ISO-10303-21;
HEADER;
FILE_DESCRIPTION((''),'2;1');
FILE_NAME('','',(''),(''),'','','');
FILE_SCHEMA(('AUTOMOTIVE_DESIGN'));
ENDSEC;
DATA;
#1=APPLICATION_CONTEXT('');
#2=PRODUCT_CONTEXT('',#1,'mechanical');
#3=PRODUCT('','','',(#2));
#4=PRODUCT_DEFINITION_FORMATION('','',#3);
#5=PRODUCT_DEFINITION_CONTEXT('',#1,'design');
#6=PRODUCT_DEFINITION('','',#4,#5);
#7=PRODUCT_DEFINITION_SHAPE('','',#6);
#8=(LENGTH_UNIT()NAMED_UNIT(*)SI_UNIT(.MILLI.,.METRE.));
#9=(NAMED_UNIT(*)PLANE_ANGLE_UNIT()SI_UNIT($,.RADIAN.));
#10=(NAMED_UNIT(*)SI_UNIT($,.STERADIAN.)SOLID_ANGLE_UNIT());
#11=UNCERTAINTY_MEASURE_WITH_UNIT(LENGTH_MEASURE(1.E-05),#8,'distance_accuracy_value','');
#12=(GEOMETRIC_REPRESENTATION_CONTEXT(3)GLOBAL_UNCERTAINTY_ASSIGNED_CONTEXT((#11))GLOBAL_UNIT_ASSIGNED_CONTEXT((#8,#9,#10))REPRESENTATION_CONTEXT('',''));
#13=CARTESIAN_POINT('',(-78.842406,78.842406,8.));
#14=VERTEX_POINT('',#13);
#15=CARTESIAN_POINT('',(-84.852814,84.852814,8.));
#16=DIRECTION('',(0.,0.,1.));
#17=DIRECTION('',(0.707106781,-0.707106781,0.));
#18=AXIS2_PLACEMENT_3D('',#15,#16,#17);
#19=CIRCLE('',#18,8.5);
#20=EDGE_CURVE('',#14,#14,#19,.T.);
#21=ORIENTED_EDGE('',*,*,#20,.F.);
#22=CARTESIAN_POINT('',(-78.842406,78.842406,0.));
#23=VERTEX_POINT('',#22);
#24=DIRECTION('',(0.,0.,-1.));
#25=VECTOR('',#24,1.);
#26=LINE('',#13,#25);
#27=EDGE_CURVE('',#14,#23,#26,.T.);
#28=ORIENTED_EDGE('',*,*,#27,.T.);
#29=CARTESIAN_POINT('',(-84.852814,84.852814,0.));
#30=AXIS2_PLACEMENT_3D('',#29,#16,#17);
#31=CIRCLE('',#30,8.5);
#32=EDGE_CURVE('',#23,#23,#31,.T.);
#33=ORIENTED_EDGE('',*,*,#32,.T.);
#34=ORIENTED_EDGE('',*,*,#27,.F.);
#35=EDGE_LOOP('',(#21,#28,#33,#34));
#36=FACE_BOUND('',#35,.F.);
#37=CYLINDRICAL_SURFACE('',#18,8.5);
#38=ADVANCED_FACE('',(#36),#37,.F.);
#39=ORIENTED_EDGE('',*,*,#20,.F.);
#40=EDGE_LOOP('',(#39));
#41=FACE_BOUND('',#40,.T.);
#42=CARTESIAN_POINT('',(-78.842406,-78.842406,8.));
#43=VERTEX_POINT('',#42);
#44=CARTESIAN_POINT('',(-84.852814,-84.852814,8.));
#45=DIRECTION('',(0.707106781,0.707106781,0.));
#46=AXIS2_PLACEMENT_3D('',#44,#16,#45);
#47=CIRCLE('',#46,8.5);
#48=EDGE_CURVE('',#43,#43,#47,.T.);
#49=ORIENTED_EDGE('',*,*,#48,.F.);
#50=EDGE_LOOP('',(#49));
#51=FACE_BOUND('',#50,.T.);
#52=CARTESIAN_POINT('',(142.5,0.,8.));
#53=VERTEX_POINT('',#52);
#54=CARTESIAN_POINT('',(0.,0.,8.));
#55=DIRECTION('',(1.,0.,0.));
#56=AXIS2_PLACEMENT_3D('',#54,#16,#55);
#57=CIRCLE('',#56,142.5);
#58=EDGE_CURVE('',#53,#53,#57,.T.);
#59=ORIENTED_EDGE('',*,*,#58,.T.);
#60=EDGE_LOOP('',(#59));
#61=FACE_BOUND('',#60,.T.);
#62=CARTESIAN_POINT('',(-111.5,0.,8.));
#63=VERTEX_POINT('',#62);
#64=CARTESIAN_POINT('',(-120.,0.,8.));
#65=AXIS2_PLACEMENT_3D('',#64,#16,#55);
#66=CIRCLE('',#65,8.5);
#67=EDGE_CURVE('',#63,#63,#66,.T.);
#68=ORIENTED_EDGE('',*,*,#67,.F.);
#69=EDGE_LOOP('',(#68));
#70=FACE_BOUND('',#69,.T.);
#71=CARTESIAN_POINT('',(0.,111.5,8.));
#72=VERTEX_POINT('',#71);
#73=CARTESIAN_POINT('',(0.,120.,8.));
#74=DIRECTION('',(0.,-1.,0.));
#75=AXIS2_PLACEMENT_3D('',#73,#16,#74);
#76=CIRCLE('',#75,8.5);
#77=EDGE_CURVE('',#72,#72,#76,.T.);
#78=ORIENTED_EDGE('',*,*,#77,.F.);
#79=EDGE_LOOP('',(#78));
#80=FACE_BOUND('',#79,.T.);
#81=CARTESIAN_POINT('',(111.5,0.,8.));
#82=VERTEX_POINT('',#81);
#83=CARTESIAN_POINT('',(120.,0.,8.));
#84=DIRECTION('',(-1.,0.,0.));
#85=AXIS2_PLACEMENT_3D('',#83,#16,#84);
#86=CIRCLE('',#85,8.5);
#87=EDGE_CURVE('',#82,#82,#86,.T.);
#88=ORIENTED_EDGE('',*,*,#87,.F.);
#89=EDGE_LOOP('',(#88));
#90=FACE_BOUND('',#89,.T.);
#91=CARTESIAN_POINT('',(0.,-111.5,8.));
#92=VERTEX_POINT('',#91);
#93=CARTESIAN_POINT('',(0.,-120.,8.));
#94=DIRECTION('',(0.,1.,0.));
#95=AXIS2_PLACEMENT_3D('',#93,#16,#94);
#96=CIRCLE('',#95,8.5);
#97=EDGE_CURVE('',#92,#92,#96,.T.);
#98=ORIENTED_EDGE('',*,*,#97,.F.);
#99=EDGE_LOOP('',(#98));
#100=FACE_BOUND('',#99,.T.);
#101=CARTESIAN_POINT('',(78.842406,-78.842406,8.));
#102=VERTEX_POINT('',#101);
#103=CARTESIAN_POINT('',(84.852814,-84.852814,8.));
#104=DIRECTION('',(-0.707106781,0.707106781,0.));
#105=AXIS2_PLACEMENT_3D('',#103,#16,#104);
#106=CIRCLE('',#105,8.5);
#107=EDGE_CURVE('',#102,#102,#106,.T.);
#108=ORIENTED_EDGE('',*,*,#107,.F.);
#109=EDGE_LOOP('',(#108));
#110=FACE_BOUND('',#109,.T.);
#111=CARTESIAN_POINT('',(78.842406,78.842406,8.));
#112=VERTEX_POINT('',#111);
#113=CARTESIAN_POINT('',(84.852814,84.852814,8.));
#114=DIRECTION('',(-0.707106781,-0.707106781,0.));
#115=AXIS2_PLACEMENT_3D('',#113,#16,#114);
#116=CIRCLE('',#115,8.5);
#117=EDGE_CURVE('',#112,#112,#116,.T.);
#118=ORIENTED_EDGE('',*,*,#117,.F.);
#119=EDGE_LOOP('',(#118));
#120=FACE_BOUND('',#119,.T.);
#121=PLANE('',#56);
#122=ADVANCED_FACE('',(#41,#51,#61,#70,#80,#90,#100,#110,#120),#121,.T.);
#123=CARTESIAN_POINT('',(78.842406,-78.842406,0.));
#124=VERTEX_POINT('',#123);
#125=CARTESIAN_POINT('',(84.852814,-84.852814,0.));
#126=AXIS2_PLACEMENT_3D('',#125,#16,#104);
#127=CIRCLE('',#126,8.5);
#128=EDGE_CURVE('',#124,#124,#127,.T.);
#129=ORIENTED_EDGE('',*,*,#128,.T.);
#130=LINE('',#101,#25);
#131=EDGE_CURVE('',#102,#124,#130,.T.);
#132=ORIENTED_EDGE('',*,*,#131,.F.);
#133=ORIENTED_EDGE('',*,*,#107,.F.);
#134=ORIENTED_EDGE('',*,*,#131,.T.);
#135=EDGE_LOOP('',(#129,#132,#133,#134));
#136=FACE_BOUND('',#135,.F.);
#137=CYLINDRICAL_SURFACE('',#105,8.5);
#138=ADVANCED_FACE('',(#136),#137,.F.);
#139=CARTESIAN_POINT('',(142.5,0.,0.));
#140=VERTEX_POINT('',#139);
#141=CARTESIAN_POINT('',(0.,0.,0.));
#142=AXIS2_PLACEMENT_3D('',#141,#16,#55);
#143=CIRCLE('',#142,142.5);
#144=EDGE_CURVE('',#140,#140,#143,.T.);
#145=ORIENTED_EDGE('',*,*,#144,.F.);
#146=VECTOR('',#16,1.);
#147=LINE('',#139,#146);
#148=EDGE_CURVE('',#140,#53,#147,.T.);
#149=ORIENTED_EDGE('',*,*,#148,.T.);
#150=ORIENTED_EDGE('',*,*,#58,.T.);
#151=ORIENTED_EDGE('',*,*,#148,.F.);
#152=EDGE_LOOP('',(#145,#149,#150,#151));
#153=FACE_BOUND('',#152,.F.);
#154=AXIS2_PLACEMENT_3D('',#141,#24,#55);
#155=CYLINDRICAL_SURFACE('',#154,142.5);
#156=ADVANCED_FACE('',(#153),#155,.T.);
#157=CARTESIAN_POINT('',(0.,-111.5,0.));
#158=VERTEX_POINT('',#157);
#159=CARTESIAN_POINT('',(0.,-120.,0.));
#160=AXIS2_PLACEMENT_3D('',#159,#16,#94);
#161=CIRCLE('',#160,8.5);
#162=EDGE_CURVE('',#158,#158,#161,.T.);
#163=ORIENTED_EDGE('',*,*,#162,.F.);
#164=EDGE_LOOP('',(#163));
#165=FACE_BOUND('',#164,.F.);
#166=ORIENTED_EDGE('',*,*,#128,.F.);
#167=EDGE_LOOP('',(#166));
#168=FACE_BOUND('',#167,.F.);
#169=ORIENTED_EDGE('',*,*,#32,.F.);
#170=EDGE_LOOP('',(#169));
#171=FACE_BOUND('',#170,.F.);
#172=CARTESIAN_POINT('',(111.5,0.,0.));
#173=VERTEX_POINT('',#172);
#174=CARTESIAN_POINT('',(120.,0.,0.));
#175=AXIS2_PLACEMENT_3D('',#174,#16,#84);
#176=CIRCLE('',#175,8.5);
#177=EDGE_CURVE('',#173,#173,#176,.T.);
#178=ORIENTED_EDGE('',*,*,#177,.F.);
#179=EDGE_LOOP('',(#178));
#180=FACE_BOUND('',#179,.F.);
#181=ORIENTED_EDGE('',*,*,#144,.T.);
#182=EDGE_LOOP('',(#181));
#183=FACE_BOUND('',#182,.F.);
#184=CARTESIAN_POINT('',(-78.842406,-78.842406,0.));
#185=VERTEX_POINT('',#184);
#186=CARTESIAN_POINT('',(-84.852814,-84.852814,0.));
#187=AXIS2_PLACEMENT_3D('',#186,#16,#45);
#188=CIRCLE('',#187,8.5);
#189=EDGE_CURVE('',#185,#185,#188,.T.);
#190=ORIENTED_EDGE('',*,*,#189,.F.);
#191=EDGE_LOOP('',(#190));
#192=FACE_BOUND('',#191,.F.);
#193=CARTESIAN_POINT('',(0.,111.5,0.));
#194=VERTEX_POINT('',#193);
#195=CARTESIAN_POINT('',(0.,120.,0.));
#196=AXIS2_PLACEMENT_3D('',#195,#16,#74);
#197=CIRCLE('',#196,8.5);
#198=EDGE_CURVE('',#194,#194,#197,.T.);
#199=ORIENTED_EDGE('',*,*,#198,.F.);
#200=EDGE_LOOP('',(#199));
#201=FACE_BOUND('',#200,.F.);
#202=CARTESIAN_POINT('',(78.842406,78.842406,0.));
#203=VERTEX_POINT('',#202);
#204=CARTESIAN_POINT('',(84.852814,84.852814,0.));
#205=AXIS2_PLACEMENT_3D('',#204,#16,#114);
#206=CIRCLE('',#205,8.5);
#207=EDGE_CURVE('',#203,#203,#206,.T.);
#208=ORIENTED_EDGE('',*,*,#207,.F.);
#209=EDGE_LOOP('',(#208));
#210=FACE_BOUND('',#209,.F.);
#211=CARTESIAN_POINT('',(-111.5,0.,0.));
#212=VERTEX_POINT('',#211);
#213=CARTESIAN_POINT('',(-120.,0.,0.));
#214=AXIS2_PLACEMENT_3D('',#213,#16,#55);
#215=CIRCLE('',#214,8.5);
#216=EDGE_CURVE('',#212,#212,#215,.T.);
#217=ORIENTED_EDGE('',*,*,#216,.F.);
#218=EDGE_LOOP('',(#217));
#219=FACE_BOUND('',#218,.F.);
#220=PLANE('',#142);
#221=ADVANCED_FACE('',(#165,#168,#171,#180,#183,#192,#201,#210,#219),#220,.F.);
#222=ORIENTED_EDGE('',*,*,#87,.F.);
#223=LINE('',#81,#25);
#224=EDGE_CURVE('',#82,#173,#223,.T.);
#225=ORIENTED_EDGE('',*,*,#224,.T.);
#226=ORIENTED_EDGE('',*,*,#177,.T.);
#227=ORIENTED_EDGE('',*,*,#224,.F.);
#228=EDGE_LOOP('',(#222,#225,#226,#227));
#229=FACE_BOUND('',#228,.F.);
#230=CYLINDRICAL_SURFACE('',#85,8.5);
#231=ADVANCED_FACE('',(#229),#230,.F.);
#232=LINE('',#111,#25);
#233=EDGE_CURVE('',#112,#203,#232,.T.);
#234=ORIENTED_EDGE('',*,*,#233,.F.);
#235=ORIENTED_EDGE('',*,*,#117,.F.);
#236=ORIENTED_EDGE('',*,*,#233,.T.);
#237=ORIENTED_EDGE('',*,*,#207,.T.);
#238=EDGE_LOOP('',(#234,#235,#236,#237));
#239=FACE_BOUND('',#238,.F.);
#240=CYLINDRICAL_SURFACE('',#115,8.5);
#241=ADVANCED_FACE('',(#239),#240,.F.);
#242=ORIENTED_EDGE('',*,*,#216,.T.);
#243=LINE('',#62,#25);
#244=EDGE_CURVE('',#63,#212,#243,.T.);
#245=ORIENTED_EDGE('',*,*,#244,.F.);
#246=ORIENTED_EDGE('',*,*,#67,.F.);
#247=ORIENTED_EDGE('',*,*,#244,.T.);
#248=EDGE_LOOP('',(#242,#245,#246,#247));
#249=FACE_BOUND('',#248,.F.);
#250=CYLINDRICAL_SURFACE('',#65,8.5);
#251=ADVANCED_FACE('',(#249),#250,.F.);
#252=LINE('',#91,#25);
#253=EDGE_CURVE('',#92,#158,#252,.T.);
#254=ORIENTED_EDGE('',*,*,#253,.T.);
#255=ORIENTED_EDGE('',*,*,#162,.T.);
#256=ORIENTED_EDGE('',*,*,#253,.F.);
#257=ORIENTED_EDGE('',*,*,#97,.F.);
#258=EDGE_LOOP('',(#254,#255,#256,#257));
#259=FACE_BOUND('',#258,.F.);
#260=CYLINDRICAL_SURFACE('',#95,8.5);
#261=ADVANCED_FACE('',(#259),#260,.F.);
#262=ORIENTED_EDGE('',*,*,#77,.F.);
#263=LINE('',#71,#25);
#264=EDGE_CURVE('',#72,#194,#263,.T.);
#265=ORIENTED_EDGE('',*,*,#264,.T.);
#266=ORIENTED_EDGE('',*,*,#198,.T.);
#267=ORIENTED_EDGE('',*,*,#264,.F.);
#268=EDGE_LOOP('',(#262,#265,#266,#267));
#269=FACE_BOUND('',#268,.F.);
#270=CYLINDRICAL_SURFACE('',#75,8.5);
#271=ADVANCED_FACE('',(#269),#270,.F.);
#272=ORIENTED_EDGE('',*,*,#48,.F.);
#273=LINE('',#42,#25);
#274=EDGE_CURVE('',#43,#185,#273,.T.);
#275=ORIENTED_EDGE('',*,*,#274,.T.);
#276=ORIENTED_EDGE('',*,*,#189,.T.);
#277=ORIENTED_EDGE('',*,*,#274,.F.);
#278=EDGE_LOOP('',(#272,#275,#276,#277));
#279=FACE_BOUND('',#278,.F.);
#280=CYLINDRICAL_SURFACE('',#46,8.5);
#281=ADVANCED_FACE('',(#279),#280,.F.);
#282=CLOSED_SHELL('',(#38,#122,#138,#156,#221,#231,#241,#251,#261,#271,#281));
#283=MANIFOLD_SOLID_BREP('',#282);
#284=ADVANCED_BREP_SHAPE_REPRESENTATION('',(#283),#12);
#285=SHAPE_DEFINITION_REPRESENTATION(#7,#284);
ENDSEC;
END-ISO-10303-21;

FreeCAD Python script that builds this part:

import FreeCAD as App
import Part
import Sketcher
from FreeCAD import Vector

doc = App.newDocument("Part")
params = doc.addObject("Spreadsheet::Sheet", "Params")
for row, (alias, value) in enumerate([
    ("sketch1_diameter", "285 mm"),
    ("pad1_length", "8 mm"),
    ("sketch2_diameter", "17 mm"),
    ("pocket1_length", "8 mm"),
], start=1):
    params.set(f"A{row}", alias)
    params.set(f"B{row}", "=" + value)
    params.setAlias(f"B{row}", alias)

body = doc.addObject("PartDesign::Body", "Body")

# Sketch on XY plane
sketch1 = body.newObject("Sketcher::SketchObject", "Sketch")
sketch1.AttachmentSupport = (doc.getObject("XY_Plane"), [""])
sketch1.MapMode = "FlatFace"
sketch1.addGeometry(Part.Circle(Vector(0, 0, 0), Vector(0, 0, 1), 142), False)
sketch1.addConstraint([
    Sketcher.Constraint("Coincident", 0, 3, -1, 1),
    Sketcher.Constraint("Diameter", 0, 285.0),
])
sketch1.setExpression("Constraints[1]", "Params.sketch1_diameter")
pad1 = body.newObject("PartDesign::Pad", "Pad")
pad1.Profile = sketch1
pad1.setExpression("Length", "Params.pad1_length")

# Sketch on XY plane
sketch2 = body.newObject("Sketcher::SketchObject", "Sketch001")
sketch2.AttachmentSupport = (doc.getObject("XY_Plane"), [""])
sketch2.MapMode = "FlatFace"
sketch2.AttachmentOffset = App.Placement(Vector(0, 0, 8), App.Rotation())
sketch2.addGeometry(Part.Circle(Vector(-120, 0, 0), Vector(0, 0, 1), 8), False)
sketch2.addConstraint([
    Sketcher.Constraint("PointOnObject", 0, 3, -1),
    Sketcher.Constraint("Diameter", 0, 17.0),
    Sketcher.Constraint("DistanceX", 0, 3, -1, 1, 120.0),
])
sketch2.setExpression("Constraints[1]", "Params.sketch2_diameter")
pocket1 = body.newObject("PartDesign::Pocket", "Pocket")
pocket1.Profile = sketch2
pocket1.setExpression("Length", "Params.pocket1_length")
doc.recompute()

polarpattern = body.newObject("PartDesign::PolarPattern", "PolarPattern")
polarpattern.Originals = [pocket1]
polarpattern.Axis = (doc.getObject("Z_Axis"), [""])
polarpattern.Angle = 360
polarpattern.Occurrences = 8
body.Tip = polarpattern

doc.recompute()
